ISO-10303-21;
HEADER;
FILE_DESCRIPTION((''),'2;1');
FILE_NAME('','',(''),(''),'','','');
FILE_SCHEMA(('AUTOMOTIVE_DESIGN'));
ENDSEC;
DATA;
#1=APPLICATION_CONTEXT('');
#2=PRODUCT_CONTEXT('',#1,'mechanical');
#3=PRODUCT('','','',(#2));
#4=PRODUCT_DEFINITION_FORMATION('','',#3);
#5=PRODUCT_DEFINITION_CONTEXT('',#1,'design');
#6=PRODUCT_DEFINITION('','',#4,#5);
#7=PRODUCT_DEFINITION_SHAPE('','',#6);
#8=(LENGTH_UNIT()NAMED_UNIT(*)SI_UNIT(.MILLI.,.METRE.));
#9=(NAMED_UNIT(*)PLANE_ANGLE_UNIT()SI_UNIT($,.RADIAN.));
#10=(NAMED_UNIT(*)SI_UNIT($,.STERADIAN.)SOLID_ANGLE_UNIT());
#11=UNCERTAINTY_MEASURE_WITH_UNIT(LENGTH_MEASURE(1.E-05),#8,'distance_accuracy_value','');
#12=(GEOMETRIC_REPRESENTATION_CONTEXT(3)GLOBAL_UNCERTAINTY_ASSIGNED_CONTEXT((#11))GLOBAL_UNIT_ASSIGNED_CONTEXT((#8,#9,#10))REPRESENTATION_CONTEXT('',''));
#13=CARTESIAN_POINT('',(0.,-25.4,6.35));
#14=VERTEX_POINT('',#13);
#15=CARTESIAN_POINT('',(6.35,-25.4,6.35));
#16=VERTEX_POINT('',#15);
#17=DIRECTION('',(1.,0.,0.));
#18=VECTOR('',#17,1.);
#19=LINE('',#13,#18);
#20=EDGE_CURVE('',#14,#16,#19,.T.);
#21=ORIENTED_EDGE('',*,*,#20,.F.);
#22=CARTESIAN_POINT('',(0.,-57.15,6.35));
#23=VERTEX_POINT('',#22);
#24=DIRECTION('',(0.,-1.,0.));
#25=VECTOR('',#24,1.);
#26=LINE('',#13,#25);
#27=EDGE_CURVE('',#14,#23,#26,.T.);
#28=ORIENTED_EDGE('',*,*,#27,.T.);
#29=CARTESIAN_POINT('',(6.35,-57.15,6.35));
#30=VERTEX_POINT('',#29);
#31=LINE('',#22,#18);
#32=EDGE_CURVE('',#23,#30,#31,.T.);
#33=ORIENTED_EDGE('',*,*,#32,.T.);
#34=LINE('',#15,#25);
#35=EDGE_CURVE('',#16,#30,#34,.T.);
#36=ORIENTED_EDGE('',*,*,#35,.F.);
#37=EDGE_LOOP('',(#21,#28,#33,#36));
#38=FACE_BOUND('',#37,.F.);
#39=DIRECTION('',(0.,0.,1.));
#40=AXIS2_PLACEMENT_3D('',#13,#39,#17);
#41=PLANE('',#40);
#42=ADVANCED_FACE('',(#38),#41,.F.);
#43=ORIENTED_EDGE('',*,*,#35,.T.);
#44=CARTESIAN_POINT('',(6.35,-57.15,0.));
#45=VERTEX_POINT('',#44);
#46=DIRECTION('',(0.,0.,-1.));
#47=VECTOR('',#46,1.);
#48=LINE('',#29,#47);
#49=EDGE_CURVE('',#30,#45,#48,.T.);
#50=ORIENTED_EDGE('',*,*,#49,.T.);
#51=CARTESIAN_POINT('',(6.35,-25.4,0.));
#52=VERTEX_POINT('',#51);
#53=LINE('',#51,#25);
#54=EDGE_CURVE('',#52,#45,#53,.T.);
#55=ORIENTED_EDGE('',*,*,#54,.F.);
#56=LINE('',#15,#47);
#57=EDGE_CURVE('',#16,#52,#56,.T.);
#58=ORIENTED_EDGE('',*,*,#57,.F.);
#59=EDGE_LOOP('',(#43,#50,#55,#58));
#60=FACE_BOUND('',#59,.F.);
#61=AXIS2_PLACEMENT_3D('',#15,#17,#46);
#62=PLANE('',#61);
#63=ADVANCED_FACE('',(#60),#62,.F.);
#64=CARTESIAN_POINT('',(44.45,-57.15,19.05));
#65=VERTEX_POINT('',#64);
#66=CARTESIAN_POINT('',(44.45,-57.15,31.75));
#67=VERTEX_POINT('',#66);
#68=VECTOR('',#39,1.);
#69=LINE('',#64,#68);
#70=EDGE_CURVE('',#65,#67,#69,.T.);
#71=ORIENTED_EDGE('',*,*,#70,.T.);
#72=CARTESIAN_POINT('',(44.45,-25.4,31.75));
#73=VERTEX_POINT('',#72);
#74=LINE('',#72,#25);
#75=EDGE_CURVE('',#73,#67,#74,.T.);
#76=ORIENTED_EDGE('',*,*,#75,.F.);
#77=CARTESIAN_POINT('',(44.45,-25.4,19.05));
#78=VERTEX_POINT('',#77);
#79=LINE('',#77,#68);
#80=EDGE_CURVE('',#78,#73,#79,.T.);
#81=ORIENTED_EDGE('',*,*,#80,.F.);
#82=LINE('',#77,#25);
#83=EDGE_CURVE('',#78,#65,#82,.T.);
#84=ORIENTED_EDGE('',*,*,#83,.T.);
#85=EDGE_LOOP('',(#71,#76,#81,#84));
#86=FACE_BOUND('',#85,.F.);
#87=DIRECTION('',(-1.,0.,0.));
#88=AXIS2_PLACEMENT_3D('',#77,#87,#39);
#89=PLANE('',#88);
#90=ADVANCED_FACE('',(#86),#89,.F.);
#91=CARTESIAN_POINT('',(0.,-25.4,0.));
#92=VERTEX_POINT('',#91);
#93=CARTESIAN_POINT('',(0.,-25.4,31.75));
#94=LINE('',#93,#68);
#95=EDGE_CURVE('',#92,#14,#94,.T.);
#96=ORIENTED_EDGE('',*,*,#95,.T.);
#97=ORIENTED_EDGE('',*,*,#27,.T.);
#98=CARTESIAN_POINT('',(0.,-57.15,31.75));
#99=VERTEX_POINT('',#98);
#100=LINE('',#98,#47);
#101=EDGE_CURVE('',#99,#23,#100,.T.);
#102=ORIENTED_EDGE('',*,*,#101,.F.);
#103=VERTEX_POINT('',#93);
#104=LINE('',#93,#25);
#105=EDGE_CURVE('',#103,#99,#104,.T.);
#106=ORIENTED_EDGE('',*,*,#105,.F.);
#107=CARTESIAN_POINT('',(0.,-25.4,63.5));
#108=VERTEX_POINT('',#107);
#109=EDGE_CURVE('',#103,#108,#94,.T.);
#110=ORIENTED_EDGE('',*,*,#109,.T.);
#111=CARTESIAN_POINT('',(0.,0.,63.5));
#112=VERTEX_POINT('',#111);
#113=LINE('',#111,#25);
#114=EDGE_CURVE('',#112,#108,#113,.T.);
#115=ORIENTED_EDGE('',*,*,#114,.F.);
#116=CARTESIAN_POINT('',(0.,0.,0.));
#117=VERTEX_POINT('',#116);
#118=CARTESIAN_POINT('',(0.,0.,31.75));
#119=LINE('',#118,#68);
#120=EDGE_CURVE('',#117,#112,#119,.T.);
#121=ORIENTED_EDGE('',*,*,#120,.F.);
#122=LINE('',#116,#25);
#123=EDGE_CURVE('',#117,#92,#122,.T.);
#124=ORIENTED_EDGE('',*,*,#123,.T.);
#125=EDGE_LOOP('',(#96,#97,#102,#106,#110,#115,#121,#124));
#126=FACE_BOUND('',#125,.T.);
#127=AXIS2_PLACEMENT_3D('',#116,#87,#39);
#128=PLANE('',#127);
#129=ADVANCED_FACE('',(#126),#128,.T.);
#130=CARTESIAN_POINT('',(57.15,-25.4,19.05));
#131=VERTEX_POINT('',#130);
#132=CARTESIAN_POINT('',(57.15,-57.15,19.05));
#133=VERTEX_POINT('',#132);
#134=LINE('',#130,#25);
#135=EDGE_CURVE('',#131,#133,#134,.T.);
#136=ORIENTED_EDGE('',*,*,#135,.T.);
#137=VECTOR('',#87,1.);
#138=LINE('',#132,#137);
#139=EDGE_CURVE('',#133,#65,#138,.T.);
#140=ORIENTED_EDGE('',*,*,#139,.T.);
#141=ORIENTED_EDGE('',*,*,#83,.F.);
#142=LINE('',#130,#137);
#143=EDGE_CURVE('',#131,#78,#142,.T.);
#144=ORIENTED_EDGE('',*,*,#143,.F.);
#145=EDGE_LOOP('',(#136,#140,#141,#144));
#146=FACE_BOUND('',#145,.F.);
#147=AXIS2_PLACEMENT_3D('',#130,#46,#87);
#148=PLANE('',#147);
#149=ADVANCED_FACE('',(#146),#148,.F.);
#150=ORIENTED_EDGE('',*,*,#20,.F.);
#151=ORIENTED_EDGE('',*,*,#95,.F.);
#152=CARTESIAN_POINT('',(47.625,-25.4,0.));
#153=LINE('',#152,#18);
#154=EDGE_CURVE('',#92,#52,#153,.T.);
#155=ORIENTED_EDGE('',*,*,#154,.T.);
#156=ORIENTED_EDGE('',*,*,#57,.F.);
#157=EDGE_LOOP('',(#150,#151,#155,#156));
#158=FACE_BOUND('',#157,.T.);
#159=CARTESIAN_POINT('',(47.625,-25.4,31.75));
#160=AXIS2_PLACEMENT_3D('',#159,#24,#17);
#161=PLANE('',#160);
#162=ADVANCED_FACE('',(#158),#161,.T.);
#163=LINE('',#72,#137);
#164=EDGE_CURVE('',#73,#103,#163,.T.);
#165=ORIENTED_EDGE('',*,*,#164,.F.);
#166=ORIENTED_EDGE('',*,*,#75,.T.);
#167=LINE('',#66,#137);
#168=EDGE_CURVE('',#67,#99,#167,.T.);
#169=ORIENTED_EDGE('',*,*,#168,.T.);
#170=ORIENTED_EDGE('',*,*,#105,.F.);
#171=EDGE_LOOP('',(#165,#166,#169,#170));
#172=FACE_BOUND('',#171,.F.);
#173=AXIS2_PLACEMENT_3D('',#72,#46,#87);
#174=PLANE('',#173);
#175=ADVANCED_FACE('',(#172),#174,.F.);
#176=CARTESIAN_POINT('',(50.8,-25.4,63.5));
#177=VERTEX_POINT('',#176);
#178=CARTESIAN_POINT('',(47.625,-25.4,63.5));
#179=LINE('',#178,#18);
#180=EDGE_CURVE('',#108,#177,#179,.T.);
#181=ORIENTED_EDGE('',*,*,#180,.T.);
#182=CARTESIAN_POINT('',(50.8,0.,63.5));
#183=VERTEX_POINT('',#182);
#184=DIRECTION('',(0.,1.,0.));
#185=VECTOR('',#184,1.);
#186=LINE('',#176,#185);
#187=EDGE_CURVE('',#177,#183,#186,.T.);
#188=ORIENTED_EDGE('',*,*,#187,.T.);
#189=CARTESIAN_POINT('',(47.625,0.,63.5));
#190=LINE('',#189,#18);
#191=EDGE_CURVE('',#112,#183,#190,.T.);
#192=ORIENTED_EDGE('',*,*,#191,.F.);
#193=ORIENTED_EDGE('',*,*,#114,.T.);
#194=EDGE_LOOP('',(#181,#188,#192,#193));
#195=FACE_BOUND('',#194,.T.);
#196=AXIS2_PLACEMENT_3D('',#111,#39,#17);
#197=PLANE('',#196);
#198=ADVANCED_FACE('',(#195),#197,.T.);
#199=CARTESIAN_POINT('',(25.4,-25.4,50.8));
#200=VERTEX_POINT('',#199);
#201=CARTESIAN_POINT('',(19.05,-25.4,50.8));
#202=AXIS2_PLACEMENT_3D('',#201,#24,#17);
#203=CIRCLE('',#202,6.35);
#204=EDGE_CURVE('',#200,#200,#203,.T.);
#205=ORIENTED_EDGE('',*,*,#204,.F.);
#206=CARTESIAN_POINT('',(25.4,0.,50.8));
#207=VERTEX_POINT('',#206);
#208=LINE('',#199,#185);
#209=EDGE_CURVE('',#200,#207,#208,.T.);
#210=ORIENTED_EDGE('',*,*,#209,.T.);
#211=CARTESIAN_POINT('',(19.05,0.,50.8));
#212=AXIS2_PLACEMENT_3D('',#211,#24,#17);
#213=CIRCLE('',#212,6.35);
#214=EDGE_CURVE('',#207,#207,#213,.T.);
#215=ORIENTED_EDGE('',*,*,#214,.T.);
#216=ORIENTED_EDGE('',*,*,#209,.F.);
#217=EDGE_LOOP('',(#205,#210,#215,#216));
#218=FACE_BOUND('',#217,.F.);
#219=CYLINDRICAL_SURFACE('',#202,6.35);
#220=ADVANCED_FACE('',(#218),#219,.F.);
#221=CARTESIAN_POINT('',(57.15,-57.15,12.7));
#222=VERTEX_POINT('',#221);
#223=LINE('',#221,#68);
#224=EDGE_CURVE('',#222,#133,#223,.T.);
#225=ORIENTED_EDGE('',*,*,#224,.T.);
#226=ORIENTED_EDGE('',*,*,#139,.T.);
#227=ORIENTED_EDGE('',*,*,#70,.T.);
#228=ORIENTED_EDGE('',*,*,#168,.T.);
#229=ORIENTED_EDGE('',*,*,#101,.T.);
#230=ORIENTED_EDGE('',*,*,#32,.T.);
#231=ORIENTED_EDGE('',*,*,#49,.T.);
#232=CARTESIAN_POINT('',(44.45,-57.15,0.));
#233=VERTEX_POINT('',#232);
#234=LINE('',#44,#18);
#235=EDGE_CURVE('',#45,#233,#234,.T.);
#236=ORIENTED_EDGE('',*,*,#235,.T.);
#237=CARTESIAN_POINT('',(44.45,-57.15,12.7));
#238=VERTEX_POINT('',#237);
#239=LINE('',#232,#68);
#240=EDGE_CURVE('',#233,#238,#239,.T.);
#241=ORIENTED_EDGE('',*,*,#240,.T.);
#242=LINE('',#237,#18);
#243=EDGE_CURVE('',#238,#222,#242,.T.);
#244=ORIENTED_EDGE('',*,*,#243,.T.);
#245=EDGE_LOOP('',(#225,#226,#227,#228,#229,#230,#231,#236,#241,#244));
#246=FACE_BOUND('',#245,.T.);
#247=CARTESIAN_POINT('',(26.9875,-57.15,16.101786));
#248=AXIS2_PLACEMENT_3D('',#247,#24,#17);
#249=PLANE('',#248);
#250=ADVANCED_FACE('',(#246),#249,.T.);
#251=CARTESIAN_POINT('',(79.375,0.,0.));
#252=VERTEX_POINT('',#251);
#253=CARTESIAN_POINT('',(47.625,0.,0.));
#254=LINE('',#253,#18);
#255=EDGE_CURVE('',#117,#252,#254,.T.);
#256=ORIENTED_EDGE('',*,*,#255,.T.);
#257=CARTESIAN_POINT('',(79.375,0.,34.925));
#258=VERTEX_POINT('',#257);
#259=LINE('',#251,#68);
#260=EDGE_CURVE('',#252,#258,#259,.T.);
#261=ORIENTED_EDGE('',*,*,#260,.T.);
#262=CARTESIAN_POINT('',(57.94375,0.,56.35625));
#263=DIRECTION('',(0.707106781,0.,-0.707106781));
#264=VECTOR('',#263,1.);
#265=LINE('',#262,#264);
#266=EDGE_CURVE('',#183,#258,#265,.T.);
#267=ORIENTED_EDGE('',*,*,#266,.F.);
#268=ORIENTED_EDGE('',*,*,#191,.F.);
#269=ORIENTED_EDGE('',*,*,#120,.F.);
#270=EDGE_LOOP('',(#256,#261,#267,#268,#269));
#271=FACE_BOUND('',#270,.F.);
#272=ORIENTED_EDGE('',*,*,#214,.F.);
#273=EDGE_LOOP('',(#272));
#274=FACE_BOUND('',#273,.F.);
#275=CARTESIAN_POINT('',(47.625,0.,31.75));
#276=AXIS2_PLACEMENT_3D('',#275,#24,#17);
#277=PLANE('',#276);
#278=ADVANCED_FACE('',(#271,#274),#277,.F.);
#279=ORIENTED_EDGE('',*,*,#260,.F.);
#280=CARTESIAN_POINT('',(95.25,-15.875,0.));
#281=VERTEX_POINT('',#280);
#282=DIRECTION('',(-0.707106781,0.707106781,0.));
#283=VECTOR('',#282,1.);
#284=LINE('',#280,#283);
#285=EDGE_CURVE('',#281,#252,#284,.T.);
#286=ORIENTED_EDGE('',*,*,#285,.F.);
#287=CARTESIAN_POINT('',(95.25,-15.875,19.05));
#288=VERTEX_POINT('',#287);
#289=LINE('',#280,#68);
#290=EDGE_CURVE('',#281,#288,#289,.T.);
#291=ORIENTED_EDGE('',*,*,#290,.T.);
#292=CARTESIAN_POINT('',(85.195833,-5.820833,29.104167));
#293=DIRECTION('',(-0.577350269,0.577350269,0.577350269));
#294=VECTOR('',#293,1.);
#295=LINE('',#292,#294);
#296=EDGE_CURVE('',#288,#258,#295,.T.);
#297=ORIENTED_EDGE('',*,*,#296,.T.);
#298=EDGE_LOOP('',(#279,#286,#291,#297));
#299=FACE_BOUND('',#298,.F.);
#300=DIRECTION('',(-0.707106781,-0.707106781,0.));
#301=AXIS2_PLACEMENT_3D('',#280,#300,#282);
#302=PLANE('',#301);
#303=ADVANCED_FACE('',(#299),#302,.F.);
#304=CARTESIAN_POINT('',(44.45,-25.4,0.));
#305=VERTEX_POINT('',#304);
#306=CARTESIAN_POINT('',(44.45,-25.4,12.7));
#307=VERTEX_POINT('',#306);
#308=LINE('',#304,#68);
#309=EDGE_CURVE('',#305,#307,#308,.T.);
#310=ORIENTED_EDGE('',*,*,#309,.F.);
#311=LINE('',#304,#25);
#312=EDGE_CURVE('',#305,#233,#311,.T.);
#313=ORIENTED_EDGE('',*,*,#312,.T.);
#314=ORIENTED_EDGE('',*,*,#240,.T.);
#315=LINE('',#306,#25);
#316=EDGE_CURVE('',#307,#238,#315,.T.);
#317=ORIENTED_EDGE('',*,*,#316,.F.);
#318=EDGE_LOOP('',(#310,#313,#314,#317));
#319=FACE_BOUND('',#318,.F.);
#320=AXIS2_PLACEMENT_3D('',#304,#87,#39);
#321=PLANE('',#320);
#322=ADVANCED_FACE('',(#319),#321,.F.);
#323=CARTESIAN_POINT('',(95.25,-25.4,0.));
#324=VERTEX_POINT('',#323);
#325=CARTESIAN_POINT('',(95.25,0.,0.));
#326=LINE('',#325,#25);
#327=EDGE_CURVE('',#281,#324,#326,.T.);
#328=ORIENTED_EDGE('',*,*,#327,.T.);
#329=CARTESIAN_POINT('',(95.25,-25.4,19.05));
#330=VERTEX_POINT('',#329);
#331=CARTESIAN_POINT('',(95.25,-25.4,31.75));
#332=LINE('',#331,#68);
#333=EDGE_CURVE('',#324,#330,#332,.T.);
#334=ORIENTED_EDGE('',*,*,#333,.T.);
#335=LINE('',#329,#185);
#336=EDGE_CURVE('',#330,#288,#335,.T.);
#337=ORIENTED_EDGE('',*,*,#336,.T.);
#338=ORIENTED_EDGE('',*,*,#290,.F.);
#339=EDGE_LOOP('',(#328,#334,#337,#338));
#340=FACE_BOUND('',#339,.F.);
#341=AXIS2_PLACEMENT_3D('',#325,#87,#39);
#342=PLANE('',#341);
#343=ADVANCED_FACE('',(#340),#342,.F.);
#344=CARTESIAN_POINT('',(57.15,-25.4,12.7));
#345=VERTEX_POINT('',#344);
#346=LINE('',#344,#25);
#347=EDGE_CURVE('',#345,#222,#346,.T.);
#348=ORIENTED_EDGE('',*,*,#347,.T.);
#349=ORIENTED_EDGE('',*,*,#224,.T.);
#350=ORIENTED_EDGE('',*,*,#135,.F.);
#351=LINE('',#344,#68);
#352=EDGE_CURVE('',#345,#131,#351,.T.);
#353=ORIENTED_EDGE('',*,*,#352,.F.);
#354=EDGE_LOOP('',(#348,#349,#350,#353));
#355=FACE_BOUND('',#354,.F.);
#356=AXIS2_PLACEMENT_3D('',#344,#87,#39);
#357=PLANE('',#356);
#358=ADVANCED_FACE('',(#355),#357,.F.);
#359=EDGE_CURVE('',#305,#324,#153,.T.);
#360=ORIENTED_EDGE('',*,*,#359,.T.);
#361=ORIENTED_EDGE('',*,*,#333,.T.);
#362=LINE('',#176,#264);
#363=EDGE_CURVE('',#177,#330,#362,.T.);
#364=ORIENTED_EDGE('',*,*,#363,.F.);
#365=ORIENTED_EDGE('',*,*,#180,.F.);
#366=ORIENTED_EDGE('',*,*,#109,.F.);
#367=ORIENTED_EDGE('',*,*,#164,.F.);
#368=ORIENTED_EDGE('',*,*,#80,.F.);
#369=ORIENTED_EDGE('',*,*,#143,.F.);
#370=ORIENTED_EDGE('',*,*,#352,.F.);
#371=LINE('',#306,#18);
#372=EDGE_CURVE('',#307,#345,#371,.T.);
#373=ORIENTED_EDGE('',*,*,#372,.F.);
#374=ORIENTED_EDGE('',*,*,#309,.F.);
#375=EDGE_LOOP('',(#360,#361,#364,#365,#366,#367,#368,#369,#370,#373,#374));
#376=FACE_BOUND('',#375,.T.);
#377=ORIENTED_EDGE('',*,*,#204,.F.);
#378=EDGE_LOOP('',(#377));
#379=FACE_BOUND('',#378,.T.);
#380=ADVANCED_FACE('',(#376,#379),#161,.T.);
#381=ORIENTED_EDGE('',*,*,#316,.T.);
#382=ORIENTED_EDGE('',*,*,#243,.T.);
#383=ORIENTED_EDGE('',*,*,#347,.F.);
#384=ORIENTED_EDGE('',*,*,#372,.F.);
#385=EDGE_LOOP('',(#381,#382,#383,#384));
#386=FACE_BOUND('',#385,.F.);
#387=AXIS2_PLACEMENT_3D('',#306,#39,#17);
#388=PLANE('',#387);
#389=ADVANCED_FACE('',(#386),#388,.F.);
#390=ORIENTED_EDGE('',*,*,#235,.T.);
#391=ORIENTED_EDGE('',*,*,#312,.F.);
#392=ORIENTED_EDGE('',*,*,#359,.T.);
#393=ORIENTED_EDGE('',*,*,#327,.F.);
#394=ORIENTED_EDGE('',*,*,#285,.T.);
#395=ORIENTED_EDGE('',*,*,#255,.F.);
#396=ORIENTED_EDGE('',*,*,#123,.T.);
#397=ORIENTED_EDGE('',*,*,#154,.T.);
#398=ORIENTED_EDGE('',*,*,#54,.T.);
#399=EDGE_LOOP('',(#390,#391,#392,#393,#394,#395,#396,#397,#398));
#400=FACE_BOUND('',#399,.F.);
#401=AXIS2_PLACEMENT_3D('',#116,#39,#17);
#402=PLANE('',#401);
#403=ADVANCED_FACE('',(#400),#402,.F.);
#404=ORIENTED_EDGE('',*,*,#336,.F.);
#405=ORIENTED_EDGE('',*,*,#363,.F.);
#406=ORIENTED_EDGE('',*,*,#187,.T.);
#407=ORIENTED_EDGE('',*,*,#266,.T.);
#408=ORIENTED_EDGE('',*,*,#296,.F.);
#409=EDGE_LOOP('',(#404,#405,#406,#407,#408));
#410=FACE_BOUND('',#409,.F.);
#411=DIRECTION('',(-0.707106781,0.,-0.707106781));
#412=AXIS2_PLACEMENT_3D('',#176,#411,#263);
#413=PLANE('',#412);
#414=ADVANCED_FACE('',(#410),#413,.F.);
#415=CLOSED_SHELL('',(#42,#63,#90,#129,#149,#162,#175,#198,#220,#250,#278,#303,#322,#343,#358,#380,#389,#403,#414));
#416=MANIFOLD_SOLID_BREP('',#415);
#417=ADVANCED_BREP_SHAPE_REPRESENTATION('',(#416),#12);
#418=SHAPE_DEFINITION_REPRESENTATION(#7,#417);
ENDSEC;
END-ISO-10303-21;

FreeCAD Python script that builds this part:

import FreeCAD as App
import Part
import Sketcher
Q = App.Units.Quantity


def add_polygon(sketch, points):
    """Adds a closed chain of lines whose ends are joined by coincident constraints."""
    first, n = sketch.GeometryCount, len(points)
    for a, b in zip(points, points[1:] + points[:1]):
        sketch.addGeometry(Part.LineSegment(App.Vector(*a, 0), App.Vector(*b, 0)), False)
    for i in range(n):
        sketch.addConstraint(Sketcher.Constraint("Coincident", first + i, 2, first + (i + 1) % n, 1))

doc = App.newDocument("Part")
body = doc.addObject("PartDesign::Body", "Body")

# Sketch on XZ plane
sketch1 = body.newObject("Sketcher::SketchObject", "Sketch")
sketch1.AttachmentSupport = (doc.getObject("XZ_Plane"), [""])
sketch1.MapMode = "FlatFace"
add_polygon(sketch1, [(0, 63.5), (0, 0), (95.25, 0), (95.25, 63.5)])  # lines 0-3
sketch1.addConstraint([
    Sketcher.Constraint("Vertical", 0),
    Sketcher.Constraint("Horizontal", 1),
    Sketcher.Constraint("Vertical", 2),
    Sketcher.Constraint("Horizontal", 3),
    Sketcher.Constraint("Coincident", 0, 2, -1, 1),
    Sketcher.Constraint("DistanceY", 0, 2, 0, 1, Q("2.5 in")),
    Sketcher.Constraint("DistanceX", 1, 1, 1, 2, Q("3.75 in")),
])
pad1 = body.newObject("PartDesign::Pad", "Pad")
pad1.Profile = sketch1
pad1.Length = Q("1 in")

# Sketch on XZ plane
sketch2 = body.newObject("Sketcher::SketchObject", "Sketch001")
sketch2.AttachmentSupport = (doc.getObject("XZ_Plane"), [""])
sketch2.MapMode = "FlatFace"
sketch2.AttachmentOffset = App.Placement(App.Vector(0, 0, 1 * 25.4), App.Rotation())
add_polygon(sketch2, [(95.25, 63.5), (50.8, 63.5), (95.25, 19.05)])  # lines 0-2
sketch2.addConstraint([
    Sketcher.Constraint("Horizontal", 0),
    Sketcher.Constraint("Vertical", 2),
    Sketcher.Constraint("Equal", 0, 2),
    Sketcher.Constraint("DistanceX", -1, 1, 0, 2, Q("2 in")),
    Sketcher.Constraint("DistanceX", 0, 2, 0, 1, Q("1.75 in")),
    Sketcher.Constraint("DistanceY", -1, 1, 0, 2, Q("2.5 in")),
])
pocket1 = body.newObject("PartDesign::Pocket", "Pocket")
pocket1.Profile = sketch2
pocket1.Type = "ThroughAll"

# Sketch on XY plane
sketch3 = body.newObject("Sketcher::SketchObject", "Sketch002")
sketch3.AttachmentSupport = (doc.getObject("XY_Plane"), [""])
sketch3.MapMode = "FlatFace"
add_polygon(sketch3, [(95.25, 0), (95.25, -15.875), (79.375, 0)])  # lines 0-2
sketch3.addConstraint([
    Sketcher.Constraint("Vertical", 0),
    Sketcher.Constraint("Horizontal", 2),
    Sketcher.Constraint("PointOnObject", 1, 2, -1),
    Sketcher.Constraint("Equal", 2, 0),
    Sketcher.Constraint("DistanceX", 2, 1, 2, 2, Q("0.625 in")),
    Sketcher.Constraint("DistanceX", -1, 1, 0, 2, Q("3.75 in")),
])
pocket2 = body.newObject("PartDesign::Pocket", "Pocket001")
pocket2.Profile = sketch3
pocket2.Type = "ThroughAll"
pocket2.Reversed = True

# Sketch on XZ plane
sketch4 = body.newObject("Sketcher::SketchObject", "Sketch003")
sketch4.AttachmentSupport = (doc.getObject("XZ_Plane"), [""])
sketch4.MapMode = "FlatFace"
sketch4.AttachmentOffset = App.Placement(App.Vector(0, 0, 1 * 25.4), App.Rotation())
sketch4.addGeometry(Part.Circle(App.Vector(19.05, 50.8, 0), App.Vector(0, 0, 1), 6.35), False)
sketch4.addConstraint([
    Sketcher.Constraint("Diameter", 0, Q("0.5 in")),
    Sketcher.Constraint("DistanceY", -1, 1, 0, 3, Q("2 in")),
    Sketcher.Constraint("DistanceX", -1, 1, 0, 3, Q("0.75 in")),
])
pocket3 = body.newObject("PartDesign::Pocket", "Pocket002")
pocket3.Profile = sketch4
pocket3.Type = "ThroughAll"

# Sketch on XZ plane
sketch5 = body.newObject("Sketcher::SketchObject", "Sketch004")
sketch5.AttachmentSupport = (doc.getObject("XZ_Plane"), [""])
sketch5.MapMode = "FlatFace"
sketch5.AttachmentOffset = App.Placement(App.Vector(0, 0, 1 * 25.4), App.Rotation())
add_polygon(sketch5, [(0, 31.75), (0, 6.35), (6.35, 6.35), (6.35, 0), (44.45, 0), (44.45, 12.7), (57.15, 12.7), (57.15, 19.05), (44.45, 19.05), (44.45, 31.75)])  # lines 0-9
sketch5.addConstraint([
    Sketcher.Constraint("Vertical", 0),
    Sketcher.Constraint("Horizontal", 1),
    Sketcher.Constraint("Vertical", 2),
    Sketcher.Constraint("Horizontal", 3),
    Sketcher.Constraint("Vertical", 4),
    Sketcher.Constraint("Horizontal", 5),
    Sketcher.Constraint("Vertical", 6),
    Sketcher.Constraint("Horizontal", 7),
    Sketcher.Constraint("Vertical", 8),
    Sketcher.Constraint("Horizontal", 9),
    Sketcher.Constraint("PointOnObject", 0, 2, -2),
    Sketcher.Constraint("PointOnObject", 2, 2, -1),
    Sketcher.Constraint("Vertical", 4, 2, 7, 2),
    Sketcher.Constraint("Equal", 1, 2),
    Sketcher.Constraint("Equal", 7, 4),
    Sketcher.Constraint("Equal", 2, 6),
    Sketcher.Constraint("Equal", 4, 8),
    Sketcher.Constraint("DistanceY", 0, 2, 0, 1, Q("1 in")),
    Sketcher.Constraint("DistanceX", 3, 1, 3, 2, Q("1.5 in")),
    Sketcher.Constraint("DistanceX", 1, 1, 1, 2, Q("0.25 in")),
])
pad2 = body.newObject("PartDesign::Pad", "Pad001")
pad2.Profile = sketch5
pad2.Length = Q("1.25 in")

doc.recompute()
